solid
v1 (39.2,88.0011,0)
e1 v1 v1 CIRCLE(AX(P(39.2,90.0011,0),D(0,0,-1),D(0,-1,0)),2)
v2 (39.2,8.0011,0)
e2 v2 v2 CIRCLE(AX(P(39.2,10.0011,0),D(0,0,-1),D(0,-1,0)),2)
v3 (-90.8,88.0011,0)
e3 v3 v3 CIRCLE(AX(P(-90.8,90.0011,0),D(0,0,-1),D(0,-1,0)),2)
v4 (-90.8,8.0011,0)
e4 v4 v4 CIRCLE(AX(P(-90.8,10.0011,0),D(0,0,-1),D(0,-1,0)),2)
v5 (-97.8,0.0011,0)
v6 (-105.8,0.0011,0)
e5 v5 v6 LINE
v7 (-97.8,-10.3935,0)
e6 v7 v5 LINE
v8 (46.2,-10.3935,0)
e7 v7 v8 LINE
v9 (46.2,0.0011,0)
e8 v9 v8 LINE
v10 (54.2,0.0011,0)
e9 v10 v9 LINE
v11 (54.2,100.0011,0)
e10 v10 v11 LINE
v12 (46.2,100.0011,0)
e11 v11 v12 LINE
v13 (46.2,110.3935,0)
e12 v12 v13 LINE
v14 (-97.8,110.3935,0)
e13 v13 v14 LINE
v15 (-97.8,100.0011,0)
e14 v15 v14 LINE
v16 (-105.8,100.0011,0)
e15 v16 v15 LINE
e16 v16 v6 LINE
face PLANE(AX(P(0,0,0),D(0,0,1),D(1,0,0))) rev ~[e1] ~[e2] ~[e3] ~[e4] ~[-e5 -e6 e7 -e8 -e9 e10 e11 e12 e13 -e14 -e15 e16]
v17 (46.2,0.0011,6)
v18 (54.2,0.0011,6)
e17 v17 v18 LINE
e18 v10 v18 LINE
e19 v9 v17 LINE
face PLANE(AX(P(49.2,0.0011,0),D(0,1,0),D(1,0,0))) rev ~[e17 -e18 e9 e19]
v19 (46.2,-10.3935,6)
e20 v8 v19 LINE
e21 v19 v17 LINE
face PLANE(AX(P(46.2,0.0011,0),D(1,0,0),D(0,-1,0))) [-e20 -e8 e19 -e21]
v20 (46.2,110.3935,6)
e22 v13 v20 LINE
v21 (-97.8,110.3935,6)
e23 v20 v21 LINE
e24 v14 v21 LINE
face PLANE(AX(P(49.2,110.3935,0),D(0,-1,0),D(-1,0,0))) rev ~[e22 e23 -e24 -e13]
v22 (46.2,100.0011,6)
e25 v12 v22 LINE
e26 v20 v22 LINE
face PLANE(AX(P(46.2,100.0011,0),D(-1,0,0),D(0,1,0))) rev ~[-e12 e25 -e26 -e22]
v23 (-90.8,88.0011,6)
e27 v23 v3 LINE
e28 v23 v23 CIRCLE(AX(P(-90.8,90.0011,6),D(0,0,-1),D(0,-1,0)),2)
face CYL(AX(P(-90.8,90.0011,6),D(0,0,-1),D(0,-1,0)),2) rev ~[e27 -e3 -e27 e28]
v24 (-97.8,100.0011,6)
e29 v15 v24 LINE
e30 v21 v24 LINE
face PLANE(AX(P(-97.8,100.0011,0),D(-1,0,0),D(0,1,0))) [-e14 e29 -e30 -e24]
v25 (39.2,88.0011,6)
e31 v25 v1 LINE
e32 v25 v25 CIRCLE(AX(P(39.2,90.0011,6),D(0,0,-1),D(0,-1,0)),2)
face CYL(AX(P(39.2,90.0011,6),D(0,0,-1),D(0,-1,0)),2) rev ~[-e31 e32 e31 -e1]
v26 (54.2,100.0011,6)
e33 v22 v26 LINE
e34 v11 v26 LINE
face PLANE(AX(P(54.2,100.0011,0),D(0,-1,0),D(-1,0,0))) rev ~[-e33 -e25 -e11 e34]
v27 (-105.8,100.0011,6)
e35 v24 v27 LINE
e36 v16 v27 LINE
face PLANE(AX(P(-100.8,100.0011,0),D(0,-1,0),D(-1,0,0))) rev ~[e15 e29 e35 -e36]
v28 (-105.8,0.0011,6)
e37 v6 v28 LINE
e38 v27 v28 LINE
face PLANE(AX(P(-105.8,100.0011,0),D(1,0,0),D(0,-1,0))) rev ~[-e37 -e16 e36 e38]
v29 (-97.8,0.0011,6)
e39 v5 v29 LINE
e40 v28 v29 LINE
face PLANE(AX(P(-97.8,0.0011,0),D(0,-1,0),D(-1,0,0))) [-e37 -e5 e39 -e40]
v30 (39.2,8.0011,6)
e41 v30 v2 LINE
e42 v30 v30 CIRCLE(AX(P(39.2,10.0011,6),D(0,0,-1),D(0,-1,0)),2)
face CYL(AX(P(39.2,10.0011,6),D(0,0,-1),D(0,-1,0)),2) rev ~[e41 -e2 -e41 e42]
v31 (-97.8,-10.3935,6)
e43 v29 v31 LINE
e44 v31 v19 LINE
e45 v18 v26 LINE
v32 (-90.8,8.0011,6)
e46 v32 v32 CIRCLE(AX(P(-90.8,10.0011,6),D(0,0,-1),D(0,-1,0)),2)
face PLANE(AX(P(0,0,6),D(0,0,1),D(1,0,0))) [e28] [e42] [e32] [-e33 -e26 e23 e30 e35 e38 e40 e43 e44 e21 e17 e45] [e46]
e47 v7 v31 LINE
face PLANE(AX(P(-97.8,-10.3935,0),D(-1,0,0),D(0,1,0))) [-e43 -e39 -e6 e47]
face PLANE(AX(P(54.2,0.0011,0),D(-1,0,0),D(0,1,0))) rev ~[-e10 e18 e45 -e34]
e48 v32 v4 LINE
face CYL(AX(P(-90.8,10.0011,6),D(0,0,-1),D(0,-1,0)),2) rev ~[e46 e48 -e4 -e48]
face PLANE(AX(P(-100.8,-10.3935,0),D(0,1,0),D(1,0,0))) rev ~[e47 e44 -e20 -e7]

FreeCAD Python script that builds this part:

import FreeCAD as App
import Part
import Sketcher
from FreeCAD import Vector
Q = App.Units.Quantity


def add_polygon(sketch, points):
    """Adds a closed chain of lines whose ends are joined by coincident constraints."""
    first, n = sketch.GeometryCount, len(points)
    for a, b in zip(points, points[1:] + points[:1]):
        sketch.addGeometry(Part.LineSegment(App.Vector(*a, 0), App.Vector(*b, 0)), False)
    for i in range(n):
        sketch.addConstraint(Sketcher.Constraint("Coincident", first + i, 2, first + (i + 1) % n, 1))

doc = App.newDocument("Part")
body = doc.addObject("PartDesign::Body", "Body")

sketch1 = body.newObject("Sketcher::SketchObject", "Sketch")
sketch1.AttachmentSupport = (doc.getObject("XY_Plane"), [""])
sketch1.MapMode = "FlatFace"
add_polygon(sketch1, [(54, 100), (49, 100), (49, 110), (-101, 110), (-101, 100), (-106, 100), (-106, 0), (-101, 0), (-101, -10), (49, -10), (49, 0), (54, 0)])
sketch1.addConstraint(Sketcher.Constraint("Horizontal", 0))
sketch1.addConstraint(Sketcher.Constraint("Vertical", 1))
sketch1.addConstraint(Sketcher.Constraint("Horizontal", 2))
sketch1.addConstraint(Sketcher.Constraint("Vertical", 3))
sketch1.addConstraint(Sketcher.Constraint("Horizontal", 4))
sketch1.addConstraint(Sketcher.Constraint("Vertical", 5))
sketch1.addConstraint(Sketcher.Constraint("Horizontal", 6))
sketch1.addConstraint(Sketcher.Constraint("Vertical", 7))
sketch1.addConstraint(Sketcher.Constraint("Horizontal", 8))
sketch1.addConstraint(Sketcher.Constraint("Vertical", 9))
sketch1.addConstraint(Sketcher.Constraint("Horizontal", 10))
sketch1.addConstraint(Sketcher.Constraint("Vertical", 11))
sketch1.addConstraint(Sketcher.Constraint("Horizontal", 0, 2, 3, 2))
sketch1.addConstraint(Sketcher.Constraint("Horizontal", 6, 2, 9, 2))
sketch1.addConstraint(Sketcher.Constraint("Vertical", 3, 2, 6, 2))
sketch1.addConstraint(Sketcher.Constraint("Vertical", 1, 2, 8, 2))
sketch1.addConstraint(Sketcher.Constraint("Equal", 0, 4))
sketch1.addConstraint(Sketcher.Constraint("DistanceX", 0, 2, 0, 1, Q("5 mm")))
sketch1.addConstraint(Sketcher.Constraint("DistanceY", 5, 2, 5, 1, Q("100 mm")))
sketch1.addConstraint(Sketcher.Constraint("DistanceX", 2, 2, 2, 1, Q("150 mm")))
sketch1.addConstraint(Sketcher.Constraint("DistanceX", -1, 1, 0, 2, Q("49.2 mm")))
sketch1.addConstraint(Sketcher.Constraint("DistanceY", 1, 1, 1, 2, Q("10.3924 mm")))
sketch1.addConstraint(Sketcher.Constraint("DistanceY", 7, 2, 7, 1, Q("10.3946 mm")))
sketch1.addConstraint(Sketcher.Constraint("DistanceY", -1, 1, 0, 2, Q("100.001 mm")))
pad1 = body.newObject("PartDesign::Pad", "Pad")
pad1.Profile = sketch1
pad1.Length = 6

sketch2 = body.newObject("Sketcher::SketchObject", "Sketch001")
sketch2.AttachmentSupport = (doc.getObject("XY_Plane"), [""])
sketch2.MapMode = "FlatFace"
sketch2.AttachmentOffset = App.Placement(Vector(0, 0, 6), App.Rotation())
sketch2.addGeometry(Part.Circle(Vector(39.2, 10, 0), Vector(0, 0, 1), 2), False)
sketch2.addGeometry(Part.Circle(Vector(39.2, 90, 0), Vector(0, 0, 1), 2), False)
sketch2.addGeometry(Part.Circle(Vector(-90.8, 90, 0), Vector(0, 0, 1), 2), False)
sketch2.addGeometry(Part.Circle(Vector(-90.8, 10, 0), Vector(0, 0, 1), 2), False)
sketch2.addConstraint(Sketcher.Constraint("Equal", 0, 1))
sketch2.addConstraint(Sketcher.Constraint("Equal", 1, 2))
sketch2.addConstraint(Sketcher.Constraint("Equal", 2, 3))
sketch2.addConstraint(Sketcher.Constraint("Horizontal", 1, 3, 2, 3))
sketch2.addConstraint(Sketcher.Constraint("Horizontal", 0, 3, 3, 3))
sketch2.addConstraint(Sketcher.Constraint("Vertical", 0, 3, 1, 3))
sketch2.addConstraint(Sketcher.Constraint("Vertical", 2, 3, 3, 3))
sketch2.addConstraint(Sketcher.Constraint("Diameter", 0, Q("4 mm")))
sketch2.addConstraint(Sketcher.Constraint("DistanceY", 0, 3, 1, 3, Q("80 mm")))
sketch2.addConstraint(Sketcher.Constraint("DistanceX", 2, 3, 1, 3, Q("130 mm")))
sketch2.addConstraint(Sketcher.Constraint("DistanceX", -1, 1, 0, 3, Q("39.2 mm")))
sketch2.addConstraint(Sketcher.Constraint("DistanceY", -1, 1, 0, 3, Q("10.001 mm")))
doc.recompute()
hole = body.newObject("PartDesign::Hole", "Hole")
hole.Profile = sketch2
hole.ThreadType = "None"
hole.Diameter = 4
hole.DepthType = "ThroughAll"

sketch3 = body.newObject("Sketcher::SketchObject", "Sketch002")
sketch3.AttachmentSupport = (doc.getObject("XY_Plane"), [""])
sketch3.MapMode = "FlatFace"
add_polygon(sketch3, [(46.2, 100), (46.2, 110.4), (49.2, 110.4), (49.2, 100)])
add_polygon(sketch3, [(-100.8, 100), (-100.8, 110.4), (-97.8, 110.4), (-97.8, 100)])
add_polygon(sketch3, [(-97.8, 0), (-97.8, -10.4), (-100.8, -10.4), (-100.8, 0)])
add_polygon(sketch3, [(49.2, 0), (49.2, -10.4), (46.2, -10.4), (46.2, 0)])
sketch3.addConstraint(Sketcher.Constraint("Vertical", 0))
sketch3.addConstraint(Sketcher.Constraint("Horizontal", 1))
sketch3.addConstraint(Sketcher.Constraint("Vertical", 2))
sketch3.addConstraint(Sketcher.Constraint("Horizontal", 3))
sketch3.addConstraint(Sketcher.Constraint("Vertical", 4))
sketch3.addConstraint(Sketcher.Constraint("Horizontal", 5))
sketch3.addConstraint(Sketcher.Constraint("Vertical", 6))
sketch3.addConstraint(Sketcher.Constraint("Horizontal", 7))
sketch3.addConstraint(Sketcher.Constraint("Vertical", 8))
sketch3.addConstraint(Sketcher.Constraint("Horizontal", 9))
sketch3.addConstraint(Sketcher.Constraint("Vertical", 10))
sketch3.addConstraint(Sketcher.Constraint("Horizontal", 11))
sketch3.addConstraint(Sketcher.Constraint("Vertical", 12))
sketch3.addConstraint(Sketcher.Constraint("Horizontal", 13))
sketch3.addConstraint(Sketcher.Constraint("Vertical", 14))
sketch3.addConstraint(Sketcher.Constraint("Horizontal", 15))
sketch3.addConstraint(Sketcher.Constraint("Horizontal", 1, 2, 4, 2))
sketch3.addConstraint(Sketcher.Constraint("Horizontal", 3, 2, 6, 2))
sketch3.addConstraint(Sketcher.Constraint("Horizontal", 9, 2, 12, 2))
sketch3.addConstraint(Sketcher.Constraint("Horizontal", 11, 2, 14, 2))
sketch3.addConstraint(Sketcher.Constraint("Vertical", 6, 2, 8, 2))
sketch3.addConstraint(Sketcher.Constraint("Vertical", 7, 2, 9, 2))
sketch3.addConstraint(Sketcher.Constraint("Vertical", 2, 2, 12, 2))
sketch3.addConstraint(Sketcher.Constraint("Vertical", 3, 2, 13, 2))
sketch3.addConstraint(Sketcher.Constraint("Equal", 3, 5))
sketch3.addConstraint(Sketcher.Constraint("DistanceX", 1, 1, 1, 2, Q("3 mm")))
sketch3.addConstraint(Sketcher.Constraint("DistanceX", 4, 2, 0, 2, Q("147 mm")))
sketch3.addConstraint(Sketcher.Constraint("DistanceY", 10, 2, 7, 2, Q("100 mm")))
sketch3.addConstraint(Sketcher.Constraint("DistanceX", -1, 1, 0, 2, Q("46.2 mm")))
sketch3.addConstraint(Sketcher.Constraint("DistanceY", 0, 1, 0, 2, Q("10.3924 mm")))
sketch3.addConstraint(Sketcher.Constraint("DistanceY", 8, 2, 8, 1, Q("10.3946 mm")))
sketch3.addConstraint(Sketcher.Constraint("DistanceY", -1, 1, 2, 2, Q("100.001 mm")))
pocket1 = body.newObject("PartDesign::Pocket", "Pocket")
pocket1.Profile = sketch3
pocket1.Type = "ThroughAll"
pocket1.Reversed = True

doc.recompute()
